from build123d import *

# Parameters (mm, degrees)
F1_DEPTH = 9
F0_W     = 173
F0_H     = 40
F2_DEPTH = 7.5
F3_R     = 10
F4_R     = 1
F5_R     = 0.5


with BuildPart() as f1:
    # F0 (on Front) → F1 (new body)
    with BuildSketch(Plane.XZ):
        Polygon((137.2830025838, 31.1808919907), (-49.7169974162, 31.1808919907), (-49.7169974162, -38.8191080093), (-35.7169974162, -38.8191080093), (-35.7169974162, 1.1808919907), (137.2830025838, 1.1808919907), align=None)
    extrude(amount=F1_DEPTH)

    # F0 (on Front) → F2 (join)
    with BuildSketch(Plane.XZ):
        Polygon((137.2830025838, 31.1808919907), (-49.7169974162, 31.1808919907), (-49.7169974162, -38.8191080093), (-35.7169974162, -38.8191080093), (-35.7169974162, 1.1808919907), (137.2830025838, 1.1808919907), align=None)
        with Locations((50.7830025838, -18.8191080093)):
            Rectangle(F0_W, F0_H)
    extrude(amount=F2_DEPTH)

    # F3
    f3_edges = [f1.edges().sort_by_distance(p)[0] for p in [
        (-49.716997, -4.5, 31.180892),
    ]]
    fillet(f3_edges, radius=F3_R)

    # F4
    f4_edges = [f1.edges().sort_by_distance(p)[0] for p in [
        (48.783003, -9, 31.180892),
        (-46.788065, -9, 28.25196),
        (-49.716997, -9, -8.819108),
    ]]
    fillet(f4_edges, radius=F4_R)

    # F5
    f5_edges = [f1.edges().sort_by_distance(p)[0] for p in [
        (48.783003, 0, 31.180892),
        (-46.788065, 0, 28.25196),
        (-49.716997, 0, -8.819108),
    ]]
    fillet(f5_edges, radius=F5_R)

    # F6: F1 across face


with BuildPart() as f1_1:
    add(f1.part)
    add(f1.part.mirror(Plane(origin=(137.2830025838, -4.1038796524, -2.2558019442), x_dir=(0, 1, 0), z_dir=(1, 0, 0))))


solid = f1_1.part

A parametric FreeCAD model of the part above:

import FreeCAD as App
import Part
import Sketcher


def edges_at(feature, points):
    """Names of the edges that pass closest to the given points."""
    edges = feature.Shape.Edges
    near = lambda p: min(range(len(edges)), key=lambda i: edges[i].distToShape(Part.Vertex(*p))[0])
    return sorted({f"Edge{near(p) + 1}" for p in points})

doc = App.newDocument("Part")
body = doc.addObject("PartDesign::Body", "Body")

# Sketch on XZ plane
sketch1 = body.newObject("Sketcher::SketchObject", "Sketch")
sketch1.AttachmentSupport = (doc.getObject("XZ_Plane"), [""])
sketch1.MapMode = "FlatFace"
sketch1.addGeometry(Part.LineSegment(App.Vector(137.283003, 31.180892, 0), App.Vector(-49.716997, 31.180892, 0)), False)
sketch1.addGeometry(Part.LineSegment(App.Vector(-49.716997, 31.180892, 0), App.Vector(-49.716997, -38.819108, 0)), False)
sketch1.addGeometry(Part.LineSegment(App.Vector(-49.716997, -38.819108, 0), App.Vector(-35.716997, -38.819108, 0)), False)
sketch1.addGeometry(Part.LineSegment(App.Vector(-35.716997, -38.819108, 0), App.Vector(-35.716997, 1.180892, 0)), False)
sketch1.addGeometry(Part.LineSegment(App.Vector(-35.716997, 1.180892, 0), App.Vector(137.283003, 1.180892, 0)), False)
sketch1.addGeometry(Part.LineSegment(App.Vector(137.283003, 1.180892, 0), App.Vector(137.283003, 31.180892, 0)), False)
sketch1.addConstraint(Sketcher.Constraint("Coincident", 0, 2, 1, 1))
sketch1.addConstraint(Sketcher.Constraint("Coincident", 1, 2, 2, 1))
sketch1.addConstraint(Sketcher.Constraint("Coincident", 2, 2, 3, 1))
sketch1.addConstraint(Sketcher.Constraint("Coincident", 3, 2, 4, 1))
sketch1.addConstraint(Sketcher.Constraint("Coincident", 4, 2, 5, 1))
sketch1.addConstraint(Sketcher.Constraint("Coincident", 5, 2, 0, 1))
sketch1.addConstraint(Sketcher.Constraint("Horizontal", 0))
sketch1.addConstraint(Sketcher.Constraint("Vertical", 1))
sketch1.addConstraint(Sketcher.Constraint("Horizontal", 2))
sketch1.addConstraint(Sketcher.Constraint("Vertical", 3))
sketch1.addConstraint(Sketcher.Constraint("Horizontal", 4))
sketch1.addConstraint(Sketcher.Constraint("Vertical", 5))
sketch1.addConstraint(Sketcher.Constraint("DistanceX", 0, 2, 0, 1, 187.0))
sketch1.addConstraint(Sketcher.Constraint("DistanceX", 2, 1, 2, 2, 14.0))
sketch1.addConstraint(Sketcher.Constraint("DistanceY", 1, 2, 1, 1, 70.0))
sketch1.addConstraint(Sketcher.Constraint("DistanceY", 3, 1, 3, 2, 40.0))
sketch1.addConstraint(Sketcher.Constraint("DistanceY", -1, 1, 0, 2, 31.180892))
sketch1.addConstraint(Sketcher.Constraint("DistanceX", 0, 2, -1, 1, 49.716997))
pad1 = body.newObject("PartDesign::Pad", "Pad")
pad1.Profile = sketch1
pad1.Length = 9

# Sketch on XZ plane
sketch2 = body.newObject("Sketcher::SketchObject", "Sketch001")
sketch2.AttachmentSupport = (doc.getObject("XZ_Plane"), [""])
sketch2.MapMode = "FlatFace"
sketch2.addGeometry(Part.LineSegment(App.Vector(137.283003, 31.180892, 0), App.Vector(-49.716997, 31.180892, 0)), False)
sketch2.addGeometry(Part.LineSegment(App.Vector(-49.716997, 31.180892, 0), App.Vector(-49.716997, -38.819108, 0)), False)
sketch2.addGeometry(Part.LineSegment(App.Vector(-49.716997, -38.819108, 0), App.Vector(137.283003, -38.819108, 0)), False)
sketch2.addGeometry(Part.LineSegment(App.Vector(137.283003, -38.819108, 0), App.Vector(137.283003, 31.180892, 0)), False)
sketch2.addConstraint(Sketcher.Constraint("Coincident", 0, 2, 1, 1))
sketch2.addConstraint(Sketcher.Constraint("Coincident", 1, 2, 2, 1))
sketch2.addConstraint(Sketcher.Constraint("Coincident", 2, 2, 3, 1))
sketch2.addConstraint(Sketcher.Constraint("Coincident", 3, 2, 0, 1))
sketch2.addConstraint(Sketcher.Constraint("Horizontal", 0))
sketch2.addConstraint(Sketcher.Constraint("Vertical", 1))
sketch2.addConstraint(Sketcher.Constraint("Horizontal", 2))
sketch2.addConstraint(Sketcher.Constraint("Vertical", 3))
sketch2.addConstraint(Sketcher.Constraint("DistanceX", 0, 2, 0, 1, 187.0))
sketch2.addConstraint(Sketcher.Constraint("DistanceY", 1, 2, 1, 1, 70.0))
sketch2.addConstraint(Sketcher.Constraint("DistanceY", -1, 1, 0, 2, 31.180892))
sketch2.addConstraint(Sketcher.Constraint("DistanceX", 0, 2, -1, 1, 49.716997))
pad2 = body.newObject("PartDesign::Pad", "Pad001")
pad2.Profile = sketch2
pad2.Length = 7.5
doc.recompute()

fillet = body.newObject("PartDesign::Fillet", "Fillet")
fillet.Base = (pad2, edges_at(pad2, [(-49.717, -4.5, 31.181)]))
fillet.Radius = 10
doc.recompute()

fillet2 = body.newObject("PartDesign::Fillet", "Fillet001")
fillet2.Base = (fillet, edges_at(fillet, [(48.783, -9, 31.181), (-46.788, -9, 28.252), (-49.717, -9, -8.819)]))
fillet2.Radius = 1
doc.recompute()

fillet3 = body.newObject("PartDesign::Fillet", "Fillet002")
fillet3.Base = (fillet2, edges_at(fillet2, [(48.783, 0, 31.181), (-46.788, 0, 28.252), (-49.717, 0, -8.819)]))
fillet3.Radius = 0.5
body2 = doc.addObject("PartDesign::Body", "Body001")
doc.recompute()

body2.BaseFeature = body
doc.recompute()

mirroring = doc.addObject("Part::Mirroring", "Mirroring")
mirroring.Source = body
mirroring.Base = App.Vector(137.283003, -4.10388, -2.255802)
mirroring.Normal = App.Vector(1, 0, 0)
body3 = doc.addObject("PartDesign::Body", "Body002")
body3.BaseFeature = mirroring
boolean = body2.newObject("PartDesign::Boolean", "Boolean")
boolean.Type = "Fuse"
boolean.addObjects([body3])
doc.recompute()
mirroring.Visibility = False

doc.recompute()
